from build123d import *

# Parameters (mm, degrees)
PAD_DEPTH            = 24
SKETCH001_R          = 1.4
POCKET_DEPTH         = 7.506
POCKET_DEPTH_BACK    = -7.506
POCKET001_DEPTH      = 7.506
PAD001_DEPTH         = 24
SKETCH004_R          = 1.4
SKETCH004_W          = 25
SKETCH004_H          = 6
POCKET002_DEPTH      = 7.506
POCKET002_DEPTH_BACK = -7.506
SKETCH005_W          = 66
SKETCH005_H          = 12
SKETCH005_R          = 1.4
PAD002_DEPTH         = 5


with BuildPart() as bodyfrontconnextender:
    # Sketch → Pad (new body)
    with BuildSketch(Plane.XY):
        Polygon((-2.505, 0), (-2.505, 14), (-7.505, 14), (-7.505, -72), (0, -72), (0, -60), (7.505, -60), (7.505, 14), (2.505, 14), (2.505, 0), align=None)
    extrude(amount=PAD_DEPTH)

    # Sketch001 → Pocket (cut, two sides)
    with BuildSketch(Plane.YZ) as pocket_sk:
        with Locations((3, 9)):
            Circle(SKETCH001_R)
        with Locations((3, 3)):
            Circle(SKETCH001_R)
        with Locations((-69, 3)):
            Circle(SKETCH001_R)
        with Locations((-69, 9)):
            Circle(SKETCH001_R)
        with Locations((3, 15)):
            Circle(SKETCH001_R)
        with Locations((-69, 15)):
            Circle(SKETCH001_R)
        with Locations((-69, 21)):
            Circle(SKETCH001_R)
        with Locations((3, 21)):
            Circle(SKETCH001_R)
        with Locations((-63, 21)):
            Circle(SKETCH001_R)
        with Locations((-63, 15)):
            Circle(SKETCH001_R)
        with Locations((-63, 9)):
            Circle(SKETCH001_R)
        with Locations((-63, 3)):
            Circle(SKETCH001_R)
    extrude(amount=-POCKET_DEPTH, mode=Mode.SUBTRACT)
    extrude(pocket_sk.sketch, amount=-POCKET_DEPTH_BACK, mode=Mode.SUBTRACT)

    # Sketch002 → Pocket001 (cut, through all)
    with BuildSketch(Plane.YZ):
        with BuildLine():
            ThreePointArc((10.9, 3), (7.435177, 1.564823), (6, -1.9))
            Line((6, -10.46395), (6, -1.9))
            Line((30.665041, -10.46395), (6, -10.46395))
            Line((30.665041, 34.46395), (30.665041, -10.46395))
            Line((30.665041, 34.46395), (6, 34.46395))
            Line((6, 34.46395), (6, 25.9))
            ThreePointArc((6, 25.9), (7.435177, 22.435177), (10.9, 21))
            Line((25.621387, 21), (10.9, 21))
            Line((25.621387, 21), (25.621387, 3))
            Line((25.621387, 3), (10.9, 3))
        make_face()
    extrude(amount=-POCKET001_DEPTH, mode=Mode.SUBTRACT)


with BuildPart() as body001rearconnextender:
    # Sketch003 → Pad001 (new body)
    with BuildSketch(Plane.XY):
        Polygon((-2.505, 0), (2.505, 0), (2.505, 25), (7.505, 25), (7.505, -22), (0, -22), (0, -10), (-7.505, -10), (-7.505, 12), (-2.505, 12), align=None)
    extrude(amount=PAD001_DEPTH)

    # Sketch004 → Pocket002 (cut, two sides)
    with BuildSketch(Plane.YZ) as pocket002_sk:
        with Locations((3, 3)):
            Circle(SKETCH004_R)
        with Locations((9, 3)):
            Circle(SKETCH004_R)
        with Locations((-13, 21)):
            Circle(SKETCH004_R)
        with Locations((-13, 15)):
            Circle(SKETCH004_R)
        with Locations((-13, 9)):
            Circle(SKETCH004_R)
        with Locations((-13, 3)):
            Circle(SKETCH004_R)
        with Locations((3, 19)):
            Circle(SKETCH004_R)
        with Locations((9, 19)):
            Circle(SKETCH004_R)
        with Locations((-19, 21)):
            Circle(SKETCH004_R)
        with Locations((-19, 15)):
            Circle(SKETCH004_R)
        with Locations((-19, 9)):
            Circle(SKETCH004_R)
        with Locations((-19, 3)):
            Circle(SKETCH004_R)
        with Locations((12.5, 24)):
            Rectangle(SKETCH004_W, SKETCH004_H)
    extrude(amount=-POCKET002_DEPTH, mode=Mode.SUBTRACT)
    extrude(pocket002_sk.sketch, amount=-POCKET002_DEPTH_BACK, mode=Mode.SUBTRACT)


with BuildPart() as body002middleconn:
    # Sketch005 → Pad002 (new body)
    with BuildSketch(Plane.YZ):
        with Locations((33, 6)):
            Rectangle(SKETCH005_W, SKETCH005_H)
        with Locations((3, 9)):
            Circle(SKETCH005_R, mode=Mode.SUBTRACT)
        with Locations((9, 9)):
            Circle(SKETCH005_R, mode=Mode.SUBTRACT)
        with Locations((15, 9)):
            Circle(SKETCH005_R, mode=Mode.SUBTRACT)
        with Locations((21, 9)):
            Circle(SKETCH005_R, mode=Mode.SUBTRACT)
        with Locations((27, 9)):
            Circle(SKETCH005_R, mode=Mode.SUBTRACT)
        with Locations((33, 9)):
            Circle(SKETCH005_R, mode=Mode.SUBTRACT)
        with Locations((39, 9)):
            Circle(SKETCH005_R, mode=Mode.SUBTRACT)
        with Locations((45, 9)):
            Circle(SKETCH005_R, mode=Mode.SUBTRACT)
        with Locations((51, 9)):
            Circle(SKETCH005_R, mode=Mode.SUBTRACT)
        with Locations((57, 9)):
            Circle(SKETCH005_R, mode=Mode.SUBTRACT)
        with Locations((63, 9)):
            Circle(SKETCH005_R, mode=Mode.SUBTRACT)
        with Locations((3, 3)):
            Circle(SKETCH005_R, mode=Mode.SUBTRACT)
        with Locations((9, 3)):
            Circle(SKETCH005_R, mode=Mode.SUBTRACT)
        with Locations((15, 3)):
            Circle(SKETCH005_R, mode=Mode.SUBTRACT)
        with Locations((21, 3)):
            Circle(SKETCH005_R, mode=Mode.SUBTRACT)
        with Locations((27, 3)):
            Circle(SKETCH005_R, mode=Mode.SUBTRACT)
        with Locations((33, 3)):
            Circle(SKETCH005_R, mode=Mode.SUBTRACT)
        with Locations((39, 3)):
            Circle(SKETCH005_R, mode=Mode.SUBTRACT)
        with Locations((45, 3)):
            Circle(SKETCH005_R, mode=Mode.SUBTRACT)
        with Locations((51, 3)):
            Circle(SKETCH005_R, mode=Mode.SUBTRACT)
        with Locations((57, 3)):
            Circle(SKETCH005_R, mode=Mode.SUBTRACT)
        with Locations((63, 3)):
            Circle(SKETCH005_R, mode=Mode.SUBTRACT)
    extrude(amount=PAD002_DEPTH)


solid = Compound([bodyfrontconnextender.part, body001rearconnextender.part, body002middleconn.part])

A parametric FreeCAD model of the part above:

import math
import FreeCAD as App
import Part
import Sketcher


def add_polygon(sketch, points):
    """Adds a closed chain of lines whose ends are joined by coincident constraints."""
    first, n = sketch.GeometryCount, len(points)
    for a, b in zip(points, points[1:] + points[:1]):
        sketch.addGeometry(Part.LineSegment(App.Vector(*a, 0), App.Vector(*b, 0)), False)
    for i in range(n):
        sketch.addConstraint(Sketcher.Constraint("Coincident", first + i, 2, first + (i + 1) % n, 1))

doc = App.newDocument("Part")
body = doc.addObject("PartDesign::Body", "Body")

# Sketch on XY plane
sketch1 = doc.addObject("Sketcher::SketchObject", "Sketch")
body.addObject(sketch1)
sketch1.AttachmentSupport = (doc.XY_Plane, [""])
sketch1.MapMode = "FlatFace"
add_polygon(sketch1, [(-3, 0), (-3, 14), (-8, 14), (-8, -72), (0, -72), (0, -60), (8, -60), (8, 14), (3, 14), (3, 0)])  # lines 0-9
sketch1.addConstraint([
    Sketcher.Constraint("Vertical", 0),
    Sketcher.Constraint("Horizontal", 1),
    Sketcher.Constraint("Vertical", 2),
    Sketcher.Constraint("Horizontal", 3),
    Sketcher.Constraint("Vertical", 4),
    Sketcher.Constraint("Horizontal", 5),
    Sketcher.Constraint("Vertical", 6),
    Sketcher.Constraint("Horizontal", 7),
    Sketcher.Constraint("Vertical", 8),
    Sketcher.Constraint("Horizontal", 9),
    Sketcher.Constraint("Symmetric", 8, 2, 9, 2, -1, 1),
    Sketcher.Constraint("Symmetric", 1, 2, 6, 2, -2),
    Sketcher.Constraint("PointOnObject", 3, 2, -2),
    Sketcher.Constraint("DistanceX", 1, 2, 1, 1, 5.0),
    Sketcher.Constraint("DistanceY", 0, 1, 0, 2, 14.0),
    Sketcher.Constraint("DistanceY", 2, 2, 2, 1, 86.0),
    Sketcher.Constraint("DistanceY", 4, 1, 4, 2, 12.0),
    Sketcher.Constraint("DistanceX", 9, 2, 9, 1, 5.01),
])
pad1 = doc.addObject("PartDesign::Pad", "Pad")
body.addObject(pad1)
pad1.Profile = sketch1
pad1.Length = 24

# Sketch on YZ plane
sketch2 = doc.addObject("Sketcher::SketchObject", "Sketch001")
body.addObject(sketch2)
sketch2.AttachmentSupport = (doc.YZ_Plane, [""])
sketch2.MapMode = "FlatFace"
sketch2.addGeometry([
    Part.Circle(App.Vector(3, 9, 0), App.Vector(0, 0, 1), 1.4),  # 0
    Part.Circle(App.Vector(3, 3, 0), App.Vector(0, 0, 1), 1.4),  # 1
    Part.Circle(App.Vector(-69, 3, 0), App.Vector(0, 0, 1), 1.4),  # 2
    Part.Circle(App.Vector(-69, 9, 0), App.Vector(0, 0, 1), 1.4),  # 3
    Part.Circle(App.Vector(3, 15, 0), App.Vector(0, 0, 1), 1.4),  # 4
    Part.Circle(App.Vector(-69, 15, 0), App.Vector(0, 0, 1), 1.4),  # 5
    Part.Circle(App.Vector(-69, 21, 0), App.Vector(0, 0, 1), 1.4),  # 6
    Part.Circle(App.Vector(3, 21, 0), App.Vector(0, 0, 1), 1.4),  # 7
    Part.Circle(App.Vector(-63, 21, 0), App.Vector(0, 0, 1), 1.4),  # 8
    Part.Circle(App.Vector(-63, 15, 0), App.Vector(0, 0, 1), 1.4),  # 9
    Part.Circle(App.Vector(-63, 9, 0), App.Vector(0, 0, 1), 1.4),  # 10
    Part.Circle(App.Vector(-63, 3, 0), App.Vector(0, 0, 1), 1.4),  # 11
], False)
sketch2.addConstraint([
    Sketcher.Constraint("Equal", 0, 1),
    Sketcher.Constraint("Equal", 1, 2),
    Sketcher.Constraint("Equal", 2, 3),
    Sketcher.Constraint("Equal", 3, 4),
    Sketcher.Constraint("Equal", 4, 5),
    Sketcher.Constraint("Equal", 5, 6),
    Sketcher.Constraint("Equal", 6, 7),
    Sketcher.Constraint("Equal", 7, 8),
    Sketcher.Constraint("Equal", 8, 9),
    Sketcher.Constraint("Equal", 9, 10),
    Sketcher.Constraint("Equal", 10, 11),
    Sketcher.Constraint("Horizontal", 1, 3, 2, 3),
    Sketcher.Constraint("Horizontal", 0, 3, 3, 3),
    Sketcher.Constraint("Horizontal", 4, 3, 5, 3),
    Sketcher.Constraint("Horizontal", 6, 3, 7, 3),
    Sketcher.Constraint("Horizontal", 7, 3, 8, 3),
    Sketcher.Constraint("Horizontal", 5, 3, 9, 3),
    Sketcher.Constraint("Horizontal", 3, 3, 10, 3),
    Sketcher.Constraint("Horizontal", 2, 3, 11, 3),
    Sketcher.Constraint("Vertical", 0, 3, 1, 3),
    Sketcher.Constraint("Vertical", 2, 3, 3, 3),
    Sketcher.Constraint("Vertical", 1, 3, 4, 3),
    Sketcher.Constraint("Vertical", 3, 3, 5, 3),
    Sketcher.Constraint("Vertical", 5, 3, 6, 3),
    Sketcher.Constraint("Vertical", 4, 3, 7, 3),
    Sketcher.Constraint("Vertical", 8, 3, 9, 3),
    Sketcher.Constraint("Vertical", 9, 3, 10, 3),
    Sketcher.Constraint("Vertical", 10, 3, 11, 3),
    Sketcher.Constraint("Diameter", 0, 2.8),
    Sketcher.Constraint("DistanceX", -1, 1, 0, 3, 3.0),
    Sketcher.Constraint("DistanceY", -1, 1, 0, 3, 9.0),
    Sketcher.Constraint("DistanceY", -1, 1, 1, 3, 3.0),
    Sketcher.Constraint("DistanceX", 2, 3, -1, 1, 69.0),
    Sketcher.Constraint("DistanceY", -1, 1, 4, 3, 15.0),
    Sketcher.Constraint("DistanceY", -1, 1, 6, 3, 21.0),
    Sketcher.Constraint("DistanceX", 8, 3, -1, 1, 63.0),
])
pocket1 = doc.addObject("PartDesign::Pocket", "Pocket")
body.addObject(pocket1)
pocket1.Profile = sketch2
pocket1.Type = "ThroughAll"
pocket1.Midplane = True

# Sketch on YZ plane
sketch3 = doc.addObject("Sketcher::SketchObject", "Sketch002")
body.addObject(sketch3)
sketch3.AttachmentSupport = (doc.YZ_Plane, [""])
sketch3.MapMode = "FlatFace"
sketch3.addGeometry([
    Part.ArcOfCircle(Part.Circle(App.Vector(10.9, -1.9, 0), App.Vector(0, 0, 1), 4.9), math.radians(90), math.radians(180)),  # 0
    Part.LineSegment(App.Vector(6, -1.9, 0), App.Vector(6, -10.5, 0)),  # 1
    Part.LineSegment(App.Vector(6, -10.5, 0), App.Vector(30.7, -10.5, 0)),  # 2
    Part.LineSegment(App.Vector(30.7, -10.5, 0), App.Vector(30.7, 34.5, 0)),  # 3
    Part.LineSegment(App.Vector(30.7, 34.5, 0), App.Vector(6, 34.5, 0)),  # 4
    Part.LineSegment(App.Vector(6, 34.5, 0), App.Vector(6, 25.9, 0)),  # 5
    Part.ArcOfCircle(Part.Circle(App.Vector(10.9, 25.9, 0), App.Vector(0, 0, 1), 4.9), math.radians(-180), math.radians(-90)),  # 6
    Part.LineSegment(App.Vector(10.9, 21, 0), App.Vector(25.6, 21, 0)),  # 7
    Part.LineSegment(App.Vector(25.6, 21, 0), App.Vector(25.6, 3, 0)),  # 8
    Part.LineSegment(App.Vector(25.6, 3, 0), App.Vector(10.9, 3, 0)),  # 9
], False)
sketch3.addConstraint([
    Sketcher.Constraint("Tangent", 0, 2, 1, 1),
    Sketcher.Constraint("Coincident", 1, 2, 2, 1),
    Sketcher.Constraint("Coincident", 2, 2, 3, 1),
    Sketcher.Constraint("Coincident", 3, 2, 4, 1),
    Sketcher.Constraint("Coincident", 4, 2, 5, 1),
    Sketcher.Constraint("Tangent", 5, 2, 6, 1),
    Sketcher.Constraint("Tangent", 6, 2, 7, 1),
    Sketcher.Constraint("Coincident", 7, 2, 8, 1),
    Sketcher.Constraint("Coincident", 8, 2, 9, 1),
    Sketcher.Constraint("Tangent", 9, 2, 0, 1),
    Sketcher.Constraint("Vertical", 1),
    Sketcher.Constraint("Horizontal", 2),
    Sketcher.Constraint("Vertical", 3),
    Sketcher.Constraint("Horizontal", 4),
    Sketcher.Constraint("Vertical", 5),
    Sketcher.Constraint("Horizontal", 7),
    Sketcher.Constraint("Vertical", 8),
    Sketcher.Constraint("Horizontal", 9),
    Sketcher.Constraint("Equal", 0, 6),
    Sketcher.Constraint("Vertical", 0, 3, 6, 3),
    Sketcher.Constraint("Equal", 1, 5),
    Sketcher.Constraint("Radius", 0, 4.900001),
    Sketcher.Constraint("DistanceY", 8, 2, 8, 1, 18.0),
    Sketcher.Constraint("DistanceX", -1, 1, 0, 2, 6.0),
    Sketcher.Constraint("DistanceY", -1, 1, 6, 2, 21.0),
    Sketcher.Constraint("DistanceY", 3, 1, 3, 2, 44.9279),
    Sketcher.Constraint("DistanceX", 2, 1, 2, 2, 24.665041),
    Sketcher.Constraint("DistanceX", 7, 1, 7, 2, 14.721387),
])
pocket2 = doc.addObject("PartDesign::Pocket", "Pocket001")
body.addObject(pocket2)
pocket2.Profile = sketch3
pocket2.Type = "ThroughAll"
body2 = doc.addObject("PartDesign::Body", "Body001")

# Sketch on XY plane
sketch4 = doc.addObject("Sketcher::SketchObject", "Sketch003")
body2.addObject(sketch4)
sketch4.AttachmentSupport = (doc.getObject("XY_Plane001"), [""])
sketch4.MapMode = "FlatFace"
add_polygon(sketch4, [(3, 0), (-3, 0), (-3, 12), (-8, 12), (-8, -10), (0, -10), (0, -22), (8, -22), (8, 25), (3, 25)])  # lines 0-9
sketch4.addConstraint([
    Sketcher.Constraint("Horizontal", 0),
    Sketcher.Constraint("Vertical", 1),
    Sketcher.Constraint("Horizontal", 2),
    Sketcher.Constraint("Vertical", 3),
    Sketcher.Constraint("Horizontal", 4),
    Sketcher.Constraint("Vertical", 5),
    Sketcher.Constraint("Horizontal", 6),
    Sketcher.Constraint("Vertical", 7),
    Sketcher.Constraint("Horizontal", 8),
    Sketcher.Constraint("Vertical", 9),
    Sketcher.Constraint("Symmetric", 0, 2, 9, 2, -1, 1),
    Sketcher.Constraint("PointOnObject", 4, 2, -2),
    Sketcher.Constraint("Equal", 4, 6),
    Sketcher.Constraint("Equal", 1, 5),
    Sketcher.Constraint("DistanceX", 2, 2, 2, 1, 5.0),
    Sketcher.Constraint("DistanceY", 1, 1, 1, 2, 12.0),
    Sketcher.Constraint("DistanceY", 3, 2, 3, 1, 22.0),
    Sketcher.Constraint("DistanceY", 7, 1, 7, 2, 47.0),
    Sketcher.Constraint("DistanceX", 0, 2, 0, 1, 5.01),
])
pad2 = doc.addObject("PartDesign::Pad", "Pad001")
body2.addObject(pad2)
pad2.Profile = sketch4
pad2.Length = 24

# Sketch on YZ plane
sketch5 = doc.addObject("Sketcher::SketchObject", "Sketch004")
body2.addObject(sketch5)
sketch5.AttachmentSupport = (doc.getObject("YZ_Plane001"), [""])
sketch5.MapMode = "FlatFace"
sketch5.addGeometry(Part.Circle(App.Vector(3, 3, 0), App.Vector(0, 0, 1), 1.4), False)  # 0
sketch5.addGeometry(Part.Circle(App.Vector(9, 3, 0), App.Vector(0, 0, 1), 1.4), False)  # 1
sketch5.addGeometry(Part.Circle(App.Vector(-13, 21, 0), App.Vector(0, 0, 1), 1.4), False)  # 2
sketch5.addGeometry(Part.Circle(App.Vector(-13, 15, 0), App.Vector(0, 0, 1), 1.4), False)  # 3
sketch5.addGeometry(Part.Circle(App.Vector(-13, 9, 0), App.Vector(0, 0, 1), 1.4), False)  # 4
sketch5.addGeometry(Part.Circle(App.Vector(-13, 3, 0), App.Vector(0, 0, 1), 1.4), False)  # 5
sketch5.addGeometry(Part.Circle(App.Vector(3, 19, 0), App.Vector(0, 0, 1), 1.4), False)  # 6
sketch5.addGeometry(Part.Circle(App.Vector(9, 19, 0), App.Vector(0, 0, 1), 1.4), False)  # 7
sketch5.addGeometry(Part.Circle(App.Vector(-19, 21, 0), App.Vector(0, 0, 1), 1.4), False)  # 8
sketch5.addGeometry(Part.Circle(App.Vector(-19, 15, 0), App.Vector(0, 0, 1), 1.4), False)  # 9
sketch5.addGeometry(Part.Circle(App.Vector(-19, 9, 0), App.Vector(0, 0, 1), 1.4), False)  # 10
sketch5.addGeometry(Part.Circle(App.Vector(-19, 3, 0), App.Vector(0, 0, 1), 1.4), False)  # 11
add_polygon(sketch5, [(0, 27), (0, 21), (25, 21), (25, 27)])  # lines 12-15
sketch5.addConstraint([
    Sketcher.Constraint("Vertical", 12),
    Sketcher.Constraint("Horizontal", 13),
    Sketcher.Constraint("Vertical", 14),
    Sketcher.Constraint("Horizontal", 15),
    Sketcher.Constraint("Equal", 0, 1),
    Sketcher.Constraint("Equal", 1, 2),
    Sketcher.Constraint("Equal", 2, 3),
    Sketcher.Constraint("Equal", 3, 4),
    Sketcher.Constraint("Equal", 4, 5),
    Sketcher.Constraint("Equal", 5, 6),
    Sketcher.Constraint("Equal", 6, 7),
    Sketcher.Constraint("Equal", 7, 8),
    Sketcher.Constraint("Equal", 8, 9),
    Sketcher.Constraint("Equal", 9, 10),
    Sketcher.Constraint("Equal", 10, 11),
    Sketcher.Constraint("PointOnObject", 12, 2, -2),
    Sketcher.Constraint("Horizontal", 0, 3, 1, 3),
    Sketcher.Constraint("Horizontal", 1, 3, 5, 3),
    Sketcher.Constraint("Horizontal", 6, 3, 7, 3),
    Sketcher.Constraint("Horizontal", 2, 3, 8, 3),
    Sketcher.Constraint("Horizontal", 3, 3, 9, 3),
    Sketcher.Constraint("Horizontal", 4, 3, 10, 3),
    Sketcher.Constraint("Horizontal", 5, 3, 11, 3),
    Sketcher.Constraint("Horizontal", 8, 3, 12, 2),
    Sketcher.Constraint("Vertical", 2, 3, 3, 3),
    Sketcher.Constraint("Vertical", 3, 3, 4, 3),
    Sketcher.Constraint("Vertical", 4, 3, 5, 3),
    Sketcher.Constraint("Vertical", 0, 3, 6, 3),
    Sketcher.Constraint("Vertical", 1, 3, 7, 3),
    Sketcher.Constraint("Vertical", 8, 3, 9, 3),
    Sketcher.Constraint("Vertical", 9, 3, 10, 3),
    Sketcher.Constraint("Vertical", 10, 3, 11, 3),
    Sketcher.Constraint("Diameter", 0, 2.8),
    Sketcher.Constraint("DistanceX", 13, 1, 13, 2, 25.0),
    Sketcher.Constraint("DistanceY", 12, 2, 12, 1, 6.0),
    Sketcher.Constraint("DistanceX", -1, 1, 0, 3, 3.0),
    Sketcher.Constraint("DistanceY", -1, 1, 0, 3, 3.0),
    Sketcher.Constraint("DistanceX", -1, 1, 1, 3, 9.0),
    Sketcher.Constraint("DistanceX", 2, 3, -1, 1, 13.0),
    Sketcher.Constraint("DistanceY", -1, 1, 2, 3, 21.0),
    Sketcher.Constraint("DistanceY", -1, 1, 3, 3, 15.0),
    Sketcher.Constraint("DistanceY", -1, 1, 4, 3, 9.0),
    Sketcher.Constraint("DistanceY", -1, 1, 6, 3, 19.0),
    Sketcher.Constraint("DistanceX", 8, 3, -1, 1, 19.0),
])
pocket3 = doc.addObject("PartDesign::Pocket", "Pocket002")
body2.addObject(pocket3)
pocket3.Profile = sketch5
pocket3.Type = "ThroughAll"
pocket3.Midplane = True
body3 = doc.addObject("PartDesign::Body", "Body002")

# Sketch on YZ plane
sketch6 = doc.addObject("Sketcher::SketchObject", "Sketch005")
body3.addObject(sketch6)
sketch6.AttachmentSupport = (doc.getObject("YZ_Plane002"), [""])
sketch6.MapMode = "FlatFace"
add_polygon(sketch6, [(0, 12), (0, 0), (66, 0), (66, 12)])  # lines 0-3
sketch6.addGeometry(Part.Circle(App.Vector(3, 3, 0), App.Vector(0, 0, 1), 1.4), False)  # 4
sketch6.addGeometry(Part.Circle(App.Vector(9, 3, 0), App.Vector(0, 0, 1), 1.4), False)  # 5
sketch6.addGeometry(Part.Circle(App.Vector(15, 3, 0), App.Vector(0, 0, 1), 1.4), False)  # 6
sketch6.addGeometry(Part.Circle(App.Vector(21, 3, 0), App.Vector(0, 0, 1), 1.4), False)  # 7
sketch6.addGeometry(Part.Circle(App.Vector(27, 3, 0), App.Vector(0, 0, 1), 1.4), False)  # 8
sketch6.addGeometry(Part.Circle(App.Vector(33, 3, 0), App.Vector(0, 0, 1), 1.4), False)  # 9
sketch6.addGeometry(Part.Circle(App.Vector(39, 3, 0), App.Vector(0, 0, 1), 1.4), False)  # 10
sketch6.addGeometry(Part.Circle(App.Vector(45, 3, 0), App.Vector(0, 0, 1), 1.4), False)  # 11
sketch6.addGeometry(Part.Circle(App.Vector(51, 3, 0), App.Vector(0, 0, 1), 1.4), False)  # 12
sketch6.addGeometry(Part.Circle(App.Vector(57, 3, 0), App.Vector(0, 0, 1), 1.4), False)  # 13
sketch6.addGeometry(Part.Circle(App.Vector(63, 3, 0), App.Vector(0, 0, 1), 1.4), False)  # 14
sketch6.addGeometry(Part.Circle(App.Vector(3, 9, 0), App.Vector(0, 0, 1), 1.4), False)  # 15
sketch6.addGeometry(Part.Circle(App.Vector(9, 9, 0), App.Vector(0, 0, 1), 1.4), False)  # 16
sketch6.addGeometry(Part.Circle(App.Vector(15, 9, 0), App.Vector(0, 0, 1), 1.4), False)  # 17
sketch6.addGeometry(Part.Circle(App.Vector(21, 9, 0), App.Vector(0, 0, 1), 1.4), False)  # 18
sketch6.addGeometry(Part.Circle(App.Vector(27, 9, 0), App.Vector(0, 0, 1), 1.4), False)  # 19
sketch6.addGeometry(Part.Circle(App.Vector(33, 9, 0), App.Vector(0, 0, 1), 1.4), False)  # 20
sketch6.addGeometry(Part.Circle(App.Vector(39, 9, 0), App.Vector(0, 0, 1), 1.4), False)  # 21
sketch6.addGeometry(Part.Circle(App.Vector(45, 9, 0), App.Vector(0, 0, 1), 1.4), False)  # 22
sketch6.addGeometry(Part.Circle(App.Vector(51, 9, 0), App.Vector(0, 0, 1), 1.4), False)  # 23
sketch6.addGeometry(Part.Circle(App.Vector(57, 9, 0), App.Vector(0, 0, 1), 1.4), False)  # 24
sketch6.addGeometry(Part.Circle(App.Vector(63, 9, 0), App.Vector(0, 0, 1), 1.4), False)  # 25
sketch6.addConstraint([
    Sketcher.Constraint("Vertical", 0),
    Sketcher.Constraint("Horizontal", 1),
    Sketcher.Constraint("Vertical", 2),
    Sketcher.Constraint("Horizontal", 3),
    Sketcher.Constraint("Coincident", 0, 2, -1, 1),
    Sketcher.Constraint("Equal", 4, 5),
    Sketcher.Constraint("Equal", 5, 6),
    Sketcher.Constraint("Equal", 6, 7),
    Sketcher.Constraint("Equal", 7, 8),
    Sketcher.Constraint("Equal", 8, 9),
    Sketcher.Constraint("Equal", 9, 10),
    Sketcher.Constraint("Equal", 10, 11),
    Sketcher.Constraint("Equal", 11, 12),
    Sketcher.Constraint("Equal", 12, 13),
    Sketcher.Constraint("Equal", 13, 14),
    Sketcher.Constraint("Equal", 14, 15),
    Sketcher.Constraint("Equal", 15, 16),
    Sketcher.Constraint("Equal", 16, 17),
    Sketcher.Constraint("Equal", 17, 18),
    Sketcher.Constraint("Equal", 18, 19),
    Sketcher.Constraint("Equal", 19, 20),
    Sketcher.Constraint("Equal", 20, 21),
    Sketcher.Constraint("Equal", 21, 22),
    Sketcher.Constraint("Equal", 22, 23),
    Sketcher.Constraint("Equal", 23, 24),
    Sketcher.Constraint("Equal", 24, 25),
    Sketcher.Constraint("Horizontal", 4, 3, 5, 3),
    Sketcher.Constraint("Horizontal", 5, 3, 6, 3),
    Sketcher.Constraint("Horizontal", 6, 3, 7, 3),
    Sketcher.Constraint("Horizontal", 7, 3, 8, 3),
    Sketcher.Constraint("Horizontal", 8, 3, 9, 3),
    Sketcher.Constraint("Horizontal", 9, 3, 10, 3),
    Sketcher.Constraint("Horizontal", 10, 3, 11, 3),
    Sketcher.Constraint("Horizontal", 11, 3, 12, 3),
    Sketcher.Constraint("Horizontal", 12, 3, 13, 3),
    Sketcher.Constraint("Horizontal", 13, 3, 14, 3),
    Sketcher.Constraint("Horizontal", 15, 3, 16, 3),
    Sketcher.Constraint("Horizontal", 16, 3, 17, 3),
    Sketcher.Constraint("Horizontal", 17, 3, 18, 3),
    Sketcher.Constraint("Horizontal", 18, 3, 19, 3),
    Sketcher.Constraint("Horizontal", 19, 3, 20, 3),
    Sketcher.Constraint("Horizontal", 20, 3, 21, 3),
    Sketcher.Constraint("Horizontal", 21, 3, 22, 3),
    Sketcher.Constraint("Horizontal", 22, 3, 23, 3),
    Sketcher.Constraint("Horizontal", 23, 3, 24, 3),
    Sketcher.Constraint("Horizontal", 24, 3, 25, 3),
    Sketcher.Constraint("Vertical", 4, 3, 15, 3),
    Sketcher.Constraint("Vertical", 5, 3, 16, 3),
    Sketcher.Constraint("Vertical", 6, 3, 17, 3),
    Sketcher.Constraint("Vertical", 7, 3, 18, 3),
    Sketcher.Constraint("Vertical", 8, 3, 19, 3),
    Sketcher.Constraint("Vertical", 9, 3, 20, 3),
    Sketcher.Constraint("Vertical", 10, 3, 21, 3),
    Sketcher.Constraint("Vertical", 11, 3, 22, 3),
    Sketcher.Constraint("Vertical", 12, 3, 23, 3),
    Sketcher.Constraint("Vertical", 13, 3, 24, 3),
    Sketcher.Constraint("Vertical", 14, 3, 25, 3),
    Sketcher.Constraint("Diameter", 4, 2.8),
    Sketcher.Constraint("DistanceX", 1, 1, 1, 2, 66.0),
    Sketcher.Constraint("DistanceY", 0, 2, 0, 1, 12.0),
    Sketcher.Constraint("DistanceX", -1, 1, 4, 3, 3.0),
    Sketcher.Constraint("DistanceY", -1, 1, 4, 3, 3.0),
    Sketcher.Constraint("DistanceX", -1, 1, 5, 3, 9.0),
    Sketcher.Constraint("DistanceX", -1, 1, 6, 3, 15.0),
    Sketcher.Constraint("DistanceX", -1, 1, 7, 3, 21.0),
    Sketcher.Constraint("DistanceX", -1, 1, 8, 3, 27.0),
    Sketcher.Constraint("DistanceX", -1, 1, 9, 3, 33.0),
    Sketcher.Constraint("DistanceX", -1, 1, 10, 3, 39.0),
    Sketcher.Constraint("DistanceX", -1, 1, 11, 3, 45.0),
    Sketcher.Constraint("DistanceX", -1, 1, 12, 3, 51.0),
    Sketcher.Constraint("DistanceX", -1, 1, 13, 3, 57.0),
    Sketcher.Constraint("DistanceX", -1, 1, 14, 3, 63.0),
    Sketcher.Constraint("DistanceY", -1, 1, 15, 3, 9.0),
])
pad3 = doc.addObject("PartDesign::Pad", "Pad002")
body3.addObject(pad3)
pad3.Profile = sketch6
pad3.Length = 5

doc.recompute()
